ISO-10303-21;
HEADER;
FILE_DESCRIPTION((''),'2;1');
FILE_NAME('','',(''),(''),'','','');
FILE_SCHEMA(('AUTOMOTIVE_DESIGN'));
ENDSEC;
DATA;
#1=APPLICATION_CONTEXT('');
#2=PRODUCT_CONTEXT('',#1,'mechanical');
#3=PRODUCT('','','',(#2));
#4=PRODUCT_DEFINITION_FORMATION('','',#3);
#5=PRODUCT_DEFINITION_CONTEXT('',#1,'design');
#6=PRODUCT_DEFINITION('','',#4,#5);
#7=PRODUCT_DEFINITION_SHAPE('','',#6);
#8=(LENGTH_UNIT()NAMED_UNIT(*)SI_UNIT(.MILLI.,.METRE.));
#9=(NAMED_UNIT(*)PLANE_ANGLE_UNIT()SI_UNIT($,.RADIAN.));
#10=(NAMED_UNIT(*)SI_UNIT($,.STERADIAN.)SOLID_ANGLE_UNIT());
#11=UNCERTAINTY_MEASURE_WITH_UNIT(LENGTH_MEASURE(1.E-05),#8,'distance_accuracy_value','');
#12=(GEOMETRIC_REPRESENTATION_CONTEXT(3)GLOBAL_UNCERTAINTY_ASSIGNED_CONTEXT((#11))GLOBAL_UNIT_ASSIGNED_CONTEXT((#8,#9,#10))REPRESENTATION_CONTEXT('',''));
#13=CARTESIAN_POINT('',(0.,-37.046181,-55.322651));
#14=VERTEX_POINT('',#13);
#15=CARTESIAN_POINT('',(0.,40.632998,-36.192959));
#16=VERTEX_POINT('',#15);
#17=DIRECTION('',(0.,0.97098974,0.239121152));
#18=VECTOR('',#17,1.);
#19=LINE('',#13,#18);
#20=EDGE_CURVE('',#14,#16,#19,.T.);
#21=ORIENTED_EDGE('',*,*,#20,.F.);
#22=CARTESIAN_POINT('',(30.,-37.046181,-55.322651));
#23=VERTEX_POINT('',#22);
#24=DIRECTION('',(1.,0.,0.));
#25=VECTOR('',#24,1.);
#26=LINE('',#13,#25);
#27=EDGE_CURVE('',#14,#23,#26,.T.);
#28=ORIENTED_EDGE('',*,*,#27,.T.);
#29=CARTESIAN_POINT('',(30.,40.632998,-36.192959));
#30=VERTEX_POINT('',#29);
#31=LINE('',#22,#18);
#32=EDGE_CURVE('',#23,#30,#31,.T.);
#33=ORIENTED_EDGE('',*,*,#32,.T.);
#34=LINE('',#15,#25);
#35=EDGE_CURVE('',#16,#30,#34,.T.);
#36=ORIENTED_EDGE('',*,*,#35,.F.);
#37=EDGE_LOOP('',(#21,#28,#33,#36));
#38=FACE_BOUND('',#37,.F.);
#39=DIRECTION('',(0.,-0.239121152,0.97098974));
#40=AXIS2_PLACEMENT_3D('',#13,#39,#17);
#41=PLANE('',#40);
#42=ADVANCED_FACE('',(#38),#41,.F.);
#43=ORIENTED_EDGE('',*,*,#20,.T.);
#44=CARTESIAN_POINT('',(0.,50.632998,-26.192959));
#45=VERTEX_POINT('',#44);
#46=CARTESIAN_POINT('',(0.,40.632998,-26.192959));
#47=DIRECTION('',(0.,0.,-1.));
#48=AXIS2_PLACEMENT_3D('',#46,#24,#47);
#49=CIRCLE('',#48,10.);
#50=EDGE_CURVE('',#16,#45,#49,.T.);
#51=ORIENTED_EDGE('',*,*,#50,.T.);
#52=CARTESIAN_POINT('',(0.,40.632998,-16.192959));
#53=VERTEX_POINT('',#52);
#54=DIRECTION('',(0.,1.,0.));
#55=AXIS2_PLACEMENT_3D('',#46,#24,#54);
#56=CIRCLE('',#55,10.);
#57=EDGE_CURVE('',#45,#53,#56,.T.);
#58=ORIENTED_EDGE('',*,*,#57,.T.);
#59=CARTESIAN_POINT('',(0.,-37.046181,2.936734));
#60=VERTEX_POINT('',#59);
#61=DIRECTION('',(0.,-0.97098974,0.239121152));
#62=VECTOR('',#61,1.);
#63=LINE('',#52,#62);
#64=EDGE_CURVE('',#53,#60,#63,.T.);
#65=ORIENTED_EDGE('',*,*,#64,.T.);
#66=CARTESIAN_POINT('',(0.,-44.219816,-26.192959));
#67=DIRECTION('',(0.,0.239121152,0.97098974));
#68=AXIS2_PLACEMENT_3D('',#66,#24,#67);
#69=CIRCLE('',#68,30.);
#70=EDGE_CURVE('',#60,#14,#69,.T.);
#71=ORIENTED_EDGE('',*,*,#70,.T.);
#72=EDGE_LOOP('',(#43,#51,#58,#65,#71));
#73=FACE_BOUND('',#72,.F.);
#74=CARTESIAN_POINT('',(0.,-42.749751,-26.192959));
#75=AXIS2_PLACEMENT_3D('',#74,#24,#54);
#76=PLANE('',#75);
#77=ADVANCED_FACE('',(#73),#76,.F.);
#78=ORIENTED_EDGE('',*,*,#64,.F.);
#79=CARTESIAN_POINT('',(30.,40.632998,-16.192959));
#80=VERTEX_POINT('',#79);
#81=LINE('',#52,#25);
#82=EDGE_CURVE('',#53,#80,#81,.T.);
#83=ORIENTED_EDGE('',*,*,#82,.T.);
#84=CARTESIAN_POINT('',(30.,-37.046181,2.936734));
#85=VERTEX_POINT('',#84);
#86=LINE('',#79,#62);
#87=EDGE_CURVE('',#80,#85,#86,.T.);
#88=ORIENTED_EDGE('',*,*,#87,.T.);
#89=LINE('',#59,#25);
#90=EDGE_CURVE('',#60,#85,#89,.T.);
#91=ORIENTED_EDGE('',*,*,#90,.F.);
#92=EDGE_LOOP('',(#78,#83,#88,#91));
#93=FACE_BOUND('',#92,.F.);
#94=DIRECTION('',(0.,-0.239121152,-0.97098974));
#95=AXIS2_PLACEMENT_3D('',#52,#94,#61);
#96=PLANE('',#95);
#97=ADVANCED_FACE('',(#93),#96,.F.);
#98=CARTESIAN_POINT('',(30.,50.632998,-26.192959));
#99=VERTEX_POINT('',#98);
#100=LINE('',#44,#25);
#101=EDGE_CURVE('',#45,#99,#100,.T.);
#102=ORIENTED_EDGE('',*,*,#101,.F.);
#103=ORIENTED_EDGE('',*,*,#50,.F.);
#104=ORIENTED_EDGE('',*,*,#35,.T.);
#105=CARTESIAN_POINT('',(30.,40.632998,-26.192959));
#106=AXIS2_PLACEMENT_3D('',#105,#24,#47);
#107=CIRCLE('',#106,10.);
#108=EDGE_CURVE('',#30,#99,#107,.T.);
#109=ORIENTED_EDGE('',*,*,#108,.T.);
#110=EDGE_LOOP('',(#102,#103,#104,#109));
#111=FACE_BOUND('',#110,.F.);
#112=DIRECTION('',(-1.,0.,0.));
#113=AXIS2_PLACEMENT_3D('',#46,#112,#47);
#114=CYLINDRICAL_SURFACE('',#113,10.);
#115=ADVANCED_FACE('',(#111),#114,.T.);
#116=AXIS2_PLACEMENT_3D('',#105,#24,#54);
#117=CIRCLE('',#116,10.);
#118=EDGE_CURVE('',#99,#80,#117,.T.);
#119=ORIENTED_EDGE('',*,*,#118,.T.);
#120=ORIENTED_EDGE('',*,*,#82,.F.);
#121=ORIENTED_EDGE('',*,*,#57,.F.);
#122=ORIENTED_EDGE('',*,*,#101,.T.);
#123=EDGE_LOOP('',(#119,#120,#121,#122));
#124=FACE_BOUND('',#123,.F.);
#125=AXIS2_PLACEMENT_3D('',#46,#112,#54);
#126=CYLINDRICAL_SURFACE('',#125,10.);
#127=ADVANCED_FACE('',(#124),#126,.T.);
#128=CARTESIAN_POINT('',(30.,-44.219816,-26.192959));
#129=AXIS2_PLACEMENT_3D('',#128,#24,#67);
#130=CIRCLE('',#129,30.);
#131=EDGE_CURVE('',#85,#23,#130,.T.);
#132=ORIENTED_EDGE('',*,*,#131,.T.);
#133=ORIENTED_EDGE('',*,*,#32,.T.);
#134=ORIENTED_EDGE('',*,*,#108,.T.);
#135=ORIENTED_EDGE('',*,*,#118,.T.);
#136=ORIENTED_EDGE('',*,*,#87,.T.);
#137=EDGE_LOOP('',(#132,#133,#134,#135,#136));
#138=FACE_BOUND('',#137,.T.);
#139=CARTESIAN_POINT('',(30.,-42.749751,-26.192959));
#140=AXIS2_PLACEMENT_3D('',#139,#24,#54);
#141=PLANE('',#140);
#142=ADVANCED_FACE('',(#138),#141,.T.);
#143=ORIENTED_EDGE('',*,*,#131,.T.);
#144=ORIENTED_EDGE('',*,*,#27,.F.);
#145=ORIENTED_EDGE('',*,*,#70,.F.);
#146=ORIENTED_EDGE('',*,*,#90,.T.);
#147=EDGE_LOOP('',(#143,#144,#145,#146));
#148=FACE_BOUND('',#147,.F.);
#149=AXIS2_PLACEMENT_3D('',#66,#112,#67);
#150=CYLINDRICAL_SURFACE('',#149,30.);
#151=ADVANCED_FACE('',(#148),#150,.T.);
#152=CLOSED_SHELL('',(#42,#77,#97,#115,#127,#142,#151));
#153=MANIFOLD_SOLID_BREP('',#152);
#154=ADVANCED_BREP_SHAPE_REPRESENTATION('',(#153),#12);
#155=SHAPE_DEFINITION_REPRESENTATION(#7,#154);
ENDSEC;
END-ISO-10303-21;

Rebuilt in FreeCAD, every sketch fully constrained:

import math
import FreeCAD as App
import Part
import Sketcher

V = App.Vector
Q = App.Units.Quantity

doc = App.newDocument("Part")
body = doc.addObject("PartDesign::Body", "Body")

sketch1 = doc.addObject("Sketcher::SketchObject", "Sketch")
body.addObject(sketch1)
sketch1.AttachmentSupport = (doc.YZ_Plane, [""])
sketch1.MapMode = "FlatFace"
sketch1.addGeometry(Part.ArcOfCircle(Part.Circle(V(-44, -26, 0), V(0, 0, 1), 30), math.radians(76), math.radians(284)), False)
sketch1.addGeometry(Part.LineSegment(V(-37, -55, 0), V(41, -36, 0)), False)
sketch1.addGeometry(Part.ArcOfCircle(Part.Circle(V(41, -26, 0), V(0, 0, 1), 10), math.radians(-90), math.radians(0)), False)
sketch1.addGeometry(Part.ArcOfCircle(Part.Circle(V(41, -26, 0), V(0, 0, 1), 10), math.radians(0), math.radians(90)), False)
sketch1.addGeometry(Part.LineSegment(V(41, -16, 0), V(-37, 3, 0)), False)
sketch1.addConstraint(Sketcher.Constraint("Tangent", 0, 2, 1, 1))
sketch1.addConstraint(Sketcher.Constraint("Coincident", 1, 2, 2, 1))
sketch1.addConstraint(Sketcher.Constraint("Tangent", 2, 2, 3, 1))
sketch1.addConstraint(Sketcher.Constraint("Coincident", 3, 2, 4, 1))
sketch1.addConstraint(Sketcher.Constraint("Tangent", 4, 2, 0, 1))
sketch1.addConstraint(Sketcher.Constraint("Equal", 2, 3))
sketch1.addConstraint(Sketcher.Constraint("Horizontal", 0, 3, 2, 3))
sketch1.addConstraint(Sketcher.Constraint("Horizontal", 3, 3, 2, 2))
sketch1.addConstraint(Sketcher.Constraint("Vertical", 3, 3, 1, 2))
sketch1.addConstraint(Sketcher.Constraint("Vertical", 1, 2, 3, 2))
sketch1.addConstraint(Sketcher.Constraint("Radius", 0, Q("30 mm")))
sketch1.addConstraint(Sketcher.Constraint("Radius", 2, Q("10 mm")))
sketch1.addConstraint(Sketcher.Constraint("Distance", 1, Q("80 mm")))
sketch1.addConstraint(Sketcher.Constraint("DistanceX", -1, 1, 2, 3, Q("40.632998 mm")))
sketch1.addConstraint(Sketcher.Constraint("DistanceY", 0, 3, -1, 1, Q("26.192959 mm")))
pad1 = doc.addObject("PartDesign::Pad", "Pad")
body.addObject(pad1)
pad1.Profile = sketch1
pad1.Length = 30

doc.recompute()
